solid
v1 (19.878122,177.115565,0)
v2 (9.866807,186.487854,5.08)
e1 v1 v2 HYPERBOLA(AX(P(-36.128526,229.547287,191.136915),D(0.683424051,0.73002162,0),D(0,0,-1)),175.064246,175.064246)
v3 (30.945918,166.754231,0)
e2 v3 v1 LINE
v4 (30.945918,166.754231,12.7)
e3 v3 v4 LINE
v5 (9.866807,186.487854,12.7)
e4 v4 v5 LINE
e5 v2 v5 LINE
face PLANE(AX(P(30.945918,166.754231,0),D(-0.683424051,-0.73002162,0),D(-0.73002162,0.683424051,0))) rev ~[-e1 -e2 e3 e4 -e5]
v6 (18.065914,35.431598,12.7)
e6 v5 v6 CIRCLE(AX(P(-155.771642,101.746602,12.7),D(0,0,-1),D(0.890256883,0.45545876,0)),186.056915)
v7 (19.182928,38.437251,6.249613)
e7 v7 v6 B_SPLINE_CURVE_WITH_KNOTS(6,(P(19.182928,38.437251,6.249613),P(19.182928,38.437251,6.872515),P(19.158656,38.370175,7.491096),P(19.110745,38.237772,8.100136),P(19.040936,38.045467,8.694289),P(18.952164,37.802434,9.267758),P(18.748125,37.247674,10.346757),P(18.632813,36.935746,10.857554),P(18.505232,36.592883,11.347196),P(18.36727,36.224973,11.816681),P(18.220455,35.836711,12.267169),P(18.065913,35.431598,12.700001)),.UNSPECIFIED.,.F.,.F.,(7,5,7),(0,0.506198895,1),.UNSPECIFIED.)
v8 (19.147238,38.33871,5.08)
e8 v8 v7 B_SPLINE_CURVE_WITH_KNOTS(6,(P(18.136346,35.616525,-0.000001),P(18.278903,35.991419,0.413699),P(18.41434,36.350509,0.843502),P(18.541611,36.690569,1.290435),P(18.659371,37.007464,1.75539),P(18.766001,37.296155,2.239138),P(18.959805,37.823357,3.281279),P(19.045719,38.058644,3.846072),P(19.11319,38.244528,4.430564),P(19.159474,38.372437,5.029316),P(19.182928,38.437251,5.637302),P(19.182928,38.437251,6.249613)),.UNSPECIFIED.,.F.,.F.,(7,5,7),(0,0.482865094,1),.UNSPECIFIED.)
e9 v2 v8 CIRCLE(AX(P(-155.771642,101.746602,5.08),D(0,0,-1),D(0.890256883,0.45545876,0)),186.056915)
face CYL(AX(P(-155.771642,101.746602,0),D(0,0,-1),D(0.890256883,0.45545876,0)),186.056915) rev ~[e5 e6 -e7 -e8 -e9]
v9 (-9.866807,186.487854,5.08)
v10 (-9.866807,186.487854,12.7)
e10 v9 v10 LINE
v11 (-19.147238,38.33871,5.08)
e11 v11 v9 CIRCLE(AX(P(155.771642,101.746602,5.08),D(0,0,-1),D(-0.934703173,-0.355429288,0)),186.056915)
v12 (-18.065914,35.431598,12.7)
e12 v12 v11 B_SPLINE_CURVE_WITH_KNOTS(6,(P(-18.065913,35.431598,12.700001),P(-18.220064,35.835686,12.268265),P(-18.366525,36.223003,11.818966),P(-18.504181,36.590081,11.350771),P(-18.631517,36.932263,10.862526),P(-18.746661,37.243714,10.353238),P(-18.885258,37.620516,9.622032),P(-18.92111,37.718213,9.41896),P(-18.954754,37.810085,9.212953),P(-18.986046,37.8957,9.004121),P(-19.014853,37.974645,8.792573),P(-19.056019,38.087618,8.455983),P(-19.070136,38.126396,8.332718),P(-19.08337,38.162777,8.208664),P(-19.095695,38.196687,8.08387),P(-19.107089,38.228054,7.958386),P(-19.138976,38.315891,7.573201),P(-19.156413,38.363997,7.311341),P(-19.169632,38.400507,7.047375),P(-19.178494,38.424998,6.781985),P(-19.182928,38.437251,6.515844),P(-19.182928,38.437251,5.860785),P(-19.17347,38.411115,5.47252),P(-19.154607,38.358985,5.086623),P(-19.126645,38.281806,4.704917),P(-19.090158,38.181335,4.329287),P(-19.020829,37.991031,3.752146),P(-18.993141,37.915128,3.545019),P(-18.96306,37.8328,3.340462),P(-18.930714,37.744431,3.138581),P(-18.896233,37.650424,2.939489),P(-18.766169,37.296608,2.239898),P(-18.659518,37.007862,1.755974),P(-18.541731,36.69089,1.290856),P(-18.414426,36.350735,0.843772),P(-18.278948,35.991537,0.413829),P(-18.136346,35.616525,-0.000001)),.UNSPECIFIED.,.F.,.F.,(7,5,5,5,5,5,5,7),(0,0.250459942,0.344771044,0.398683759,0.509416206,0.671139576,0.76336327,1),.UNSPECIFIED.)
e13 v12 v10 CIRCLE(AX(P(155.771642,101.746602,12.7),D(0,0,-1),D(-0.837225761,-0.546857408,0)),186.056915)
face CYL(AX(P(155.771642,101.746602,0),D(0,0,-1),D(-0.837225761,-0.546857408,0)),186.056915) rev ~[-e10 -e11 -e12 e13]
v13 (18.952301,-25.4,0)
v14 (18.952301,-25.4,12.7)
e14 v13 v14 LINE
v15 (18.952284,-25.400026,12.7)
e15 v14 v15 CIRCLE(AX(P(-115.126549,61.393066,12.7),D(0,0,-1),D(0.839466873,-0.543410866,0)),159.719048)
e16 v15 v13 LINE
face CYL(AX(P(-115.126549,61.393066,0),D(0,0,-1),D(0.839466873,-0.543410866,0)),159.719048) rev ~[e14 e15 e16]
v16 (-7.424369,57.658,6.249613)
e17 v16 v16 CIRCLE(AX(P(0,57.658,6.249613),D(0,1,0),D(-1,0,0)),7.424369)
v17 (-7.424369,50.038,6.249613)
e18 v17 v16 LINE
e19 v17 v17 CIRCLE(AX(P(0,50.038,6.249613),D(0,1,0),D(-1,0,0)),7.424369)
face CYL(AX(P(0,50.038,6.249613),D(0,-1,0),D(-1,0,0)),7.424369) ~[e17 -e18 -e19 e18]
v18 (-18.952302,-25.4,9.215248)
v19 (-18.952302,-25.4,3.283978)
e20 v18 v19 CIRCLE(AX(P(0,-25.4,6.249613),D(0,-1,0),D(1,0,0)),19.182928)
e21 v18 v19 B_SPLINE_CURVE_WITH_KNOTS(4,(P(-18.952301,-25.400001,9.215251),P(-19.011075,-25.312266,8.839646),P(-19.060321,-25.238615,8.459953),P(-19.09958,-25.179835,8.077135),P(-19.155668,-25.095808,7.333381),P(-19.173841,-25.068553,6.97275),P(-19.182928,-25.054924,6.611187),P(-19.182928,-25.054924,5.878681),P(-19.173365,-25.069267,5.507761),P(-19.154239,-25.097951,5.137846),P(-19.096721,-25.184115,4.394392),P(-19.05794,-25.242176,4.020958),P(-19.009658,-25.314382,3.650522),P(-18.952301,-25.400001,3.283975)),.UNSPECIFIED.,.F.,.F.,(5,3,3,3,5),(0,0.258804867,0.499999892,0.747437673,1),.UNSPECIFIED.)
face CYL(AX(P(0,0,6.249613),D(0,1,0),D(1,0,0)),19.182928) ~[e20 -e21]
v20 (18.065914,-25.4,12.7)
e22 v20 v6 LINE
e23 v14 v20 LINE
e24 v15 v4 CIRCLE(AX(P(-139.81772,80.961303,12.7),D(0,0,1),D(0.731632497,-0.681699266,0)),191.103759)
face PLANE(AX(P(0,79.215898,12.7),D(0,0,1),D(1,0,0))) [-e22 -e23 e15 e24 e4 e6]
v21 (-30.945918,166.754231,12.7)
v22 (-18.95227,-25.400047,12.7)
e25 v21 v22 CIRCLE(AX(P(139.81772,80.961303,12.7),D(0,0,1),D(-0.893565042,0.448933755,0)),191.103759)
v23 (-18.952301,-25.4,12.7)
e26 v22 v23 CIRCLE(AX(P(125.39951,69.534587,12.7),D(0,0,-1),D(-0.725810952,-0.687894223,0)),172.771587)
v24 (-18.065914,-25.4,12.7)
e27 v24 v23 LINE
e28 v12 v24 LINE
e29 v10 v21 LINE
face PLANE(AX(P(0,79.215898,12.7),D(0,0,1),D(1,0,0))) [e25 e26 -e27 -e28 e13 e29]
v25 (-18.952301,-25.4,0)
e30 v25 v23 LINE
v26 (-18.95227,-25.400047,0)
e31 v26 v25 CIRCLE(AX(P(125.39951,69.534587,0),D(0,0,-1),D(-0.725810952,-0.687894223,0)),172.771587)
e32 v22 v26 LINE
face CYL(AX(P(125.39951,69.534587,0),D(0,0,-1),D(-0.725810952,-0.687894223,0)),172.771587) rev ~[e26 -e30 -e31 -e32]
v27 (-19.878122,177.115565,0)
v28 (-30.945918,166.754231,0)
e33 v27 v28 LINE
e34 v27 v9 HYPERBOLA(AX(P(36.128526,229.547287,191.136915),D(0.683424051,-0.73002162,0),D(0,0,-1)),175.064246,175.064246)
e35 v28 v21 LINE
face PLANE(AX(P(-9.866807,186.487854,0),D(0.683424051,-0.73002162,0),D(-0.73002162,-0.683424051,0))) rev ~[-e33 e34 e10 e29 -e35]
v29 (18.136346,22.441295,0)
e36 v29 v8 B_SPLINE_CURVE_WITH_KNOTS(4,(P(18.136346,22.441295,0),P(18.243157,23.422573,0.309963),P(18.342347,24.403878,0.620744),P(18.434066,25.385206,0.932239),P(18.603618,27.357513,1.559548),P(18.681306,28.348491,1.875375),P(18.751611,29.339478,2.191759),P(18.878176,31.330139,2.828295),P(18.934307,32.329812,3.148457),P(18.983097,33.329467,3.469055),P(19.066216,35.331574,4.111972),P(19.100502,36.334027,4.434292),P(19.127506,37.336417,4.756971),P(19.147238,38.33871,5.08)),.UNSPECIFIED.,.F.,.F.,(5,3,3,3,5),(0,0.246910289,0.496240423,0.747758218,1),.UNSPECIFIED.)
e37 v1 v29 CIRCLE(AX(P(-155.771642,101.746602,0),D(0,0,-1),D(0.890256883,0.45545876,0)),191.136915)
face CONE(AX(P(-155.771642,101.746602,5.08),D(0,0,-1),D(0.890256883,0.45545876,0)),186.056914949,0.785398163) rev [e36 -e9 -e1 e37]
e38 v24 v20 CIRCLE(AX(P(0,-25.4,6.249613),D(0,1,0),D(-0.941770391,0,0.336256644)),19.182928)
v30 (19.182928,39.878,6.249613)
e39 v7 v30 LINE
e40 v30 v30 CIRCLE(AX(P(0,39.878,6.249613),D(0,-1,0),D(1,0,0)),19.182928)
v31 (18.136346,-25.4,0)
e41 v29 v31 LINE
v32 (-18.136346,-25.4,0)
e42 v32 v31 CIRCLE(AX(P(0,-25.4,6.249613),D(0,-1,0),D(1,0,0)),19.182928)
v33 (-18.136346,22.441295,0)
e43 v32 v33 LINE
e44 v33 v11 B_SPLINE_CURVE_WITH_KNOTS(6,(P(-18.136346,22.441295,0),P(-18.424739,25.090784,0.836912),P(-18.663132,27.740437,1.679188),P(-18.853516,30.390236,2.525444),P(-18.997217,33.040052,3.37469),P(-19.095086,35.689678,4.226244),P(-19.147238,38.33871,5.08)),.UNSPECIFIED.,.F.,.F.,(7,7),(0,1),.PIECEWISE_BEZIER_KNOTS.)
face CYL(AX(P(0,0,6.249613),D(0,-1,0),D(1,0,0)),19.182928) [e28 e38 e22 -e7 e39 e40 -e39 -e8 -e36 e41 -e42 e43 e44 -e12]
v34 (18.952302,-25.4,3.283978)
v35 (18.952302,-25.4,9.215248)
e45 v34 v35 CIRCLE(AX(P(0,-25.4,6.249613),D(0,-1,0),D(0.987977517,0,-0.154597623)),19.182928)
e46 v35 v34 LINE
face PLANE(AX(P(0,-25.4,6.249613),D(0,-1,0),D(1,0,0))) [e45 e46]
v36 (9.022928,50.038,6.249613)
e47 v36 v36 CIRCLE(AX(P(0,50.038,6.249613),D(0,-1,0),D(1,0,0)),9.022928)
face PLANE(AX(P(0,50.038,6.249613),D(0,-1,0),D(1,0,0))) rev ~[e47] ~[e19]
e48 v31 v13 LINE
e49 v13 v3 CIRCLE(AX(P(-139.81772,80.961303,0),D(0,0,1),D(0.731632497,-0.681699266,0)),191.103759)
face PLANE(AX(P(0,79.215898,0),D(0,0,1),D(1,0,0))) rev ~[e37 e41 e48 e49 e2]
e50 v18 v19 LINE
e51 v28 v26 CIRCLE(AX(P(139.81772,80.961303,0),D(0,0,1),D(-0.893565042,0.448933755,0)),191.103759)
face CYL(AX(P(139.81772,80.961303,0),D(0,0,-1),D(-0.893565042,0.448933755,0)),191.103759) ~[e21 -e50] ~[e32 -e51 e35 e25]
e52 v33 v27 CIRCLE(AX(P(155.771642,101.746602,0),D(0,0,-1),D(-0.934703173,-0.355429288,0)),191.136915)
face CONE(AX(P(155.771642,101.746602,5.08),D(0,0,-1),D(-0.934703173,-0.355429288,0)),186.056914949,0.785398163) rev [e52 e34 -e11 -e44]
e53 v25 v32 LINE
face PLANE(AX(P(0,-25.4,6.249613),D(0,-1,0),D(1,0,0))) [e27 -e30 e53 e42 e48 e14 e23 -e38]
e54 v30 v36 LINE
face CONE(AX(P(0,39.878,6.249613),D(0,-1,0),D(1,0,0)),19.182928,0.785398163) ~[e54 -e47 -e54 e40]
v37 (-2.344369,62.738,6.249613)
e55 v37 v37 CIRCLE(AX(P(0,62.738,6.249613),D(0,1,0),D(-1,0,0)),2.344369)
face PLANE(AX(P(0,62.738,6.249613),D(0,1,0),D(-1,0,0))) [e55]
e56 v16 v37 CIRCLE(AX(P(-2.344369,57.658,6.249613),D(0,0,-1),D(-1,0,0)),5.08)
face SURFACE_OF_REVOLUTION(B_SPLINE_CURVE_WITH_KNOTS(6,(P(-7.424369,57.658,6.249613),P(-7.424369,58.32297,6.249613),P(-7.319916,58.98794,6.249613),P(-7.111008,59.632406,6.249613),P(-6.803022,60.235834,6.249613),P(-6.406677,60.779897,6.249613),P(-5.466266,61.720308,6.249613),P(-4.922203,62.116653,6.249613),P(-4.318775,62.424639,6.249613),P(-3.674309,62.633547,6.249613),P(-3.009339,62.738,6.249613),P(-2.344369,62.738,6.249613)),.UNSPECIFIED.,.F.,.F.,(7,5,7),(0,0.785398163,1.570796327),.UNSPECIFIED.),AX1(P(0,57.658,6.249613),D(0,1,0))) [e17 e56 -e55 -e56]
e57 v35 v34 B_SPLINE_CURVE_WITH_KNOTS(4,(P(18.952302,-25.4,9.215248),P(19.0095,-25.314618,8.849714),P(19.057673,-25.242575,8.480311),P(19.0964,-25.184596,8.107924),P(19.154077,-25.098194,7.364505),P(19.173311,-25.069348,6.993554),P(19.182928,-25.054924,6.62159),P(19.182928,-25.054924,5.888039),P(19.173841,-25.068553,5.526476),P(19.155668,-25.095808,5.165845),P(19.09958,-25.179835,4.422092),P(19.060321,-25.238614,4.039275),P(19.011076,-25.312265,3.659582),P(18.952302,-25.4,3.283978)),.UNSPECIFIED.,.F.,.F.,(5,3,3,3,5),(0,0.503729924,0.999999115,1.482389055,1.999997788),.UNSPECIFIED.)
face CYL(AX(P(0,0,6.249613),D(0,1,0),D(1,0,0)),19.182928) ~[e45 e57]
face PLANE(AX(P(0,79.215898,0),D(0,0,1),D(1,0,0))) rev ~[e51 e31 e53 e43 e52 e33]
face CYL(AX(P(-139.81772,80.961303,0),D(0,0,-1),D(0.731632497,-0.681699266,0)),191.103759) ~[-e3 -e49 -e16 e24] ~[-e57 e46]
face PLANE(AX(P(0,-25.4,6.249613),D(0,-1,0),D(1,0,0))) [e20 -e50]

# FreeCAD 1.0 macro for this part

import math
import FreeCAD as App
import Part
import Sketcher
Q = App.Units.Quantity


def edges_at(feature, points):
    """Names of the edges that pass closest to the given points."""
    edges = feature.Shape.Edges
    near = lambda p: min(range(len(edges)), key=lambda i: edges[i].distToShape(Part.Vertex(*p))[0])
    return sorted({f"Edge{near(p) + 1}" for p in points})

doc = App.newDocument("Part")
body = doc.addObject("PartDesign::Body", "Body")

# Sketch on XY plane
sketch1 = doc.addObject("Sketcher::SketchObject", "Sketch")
body.addObject(sketch1)
sketch1.AttachmentSupport = (doc.XY_Plane, [""])
sketch1.MapMode = "FlatFace"
sketch1.addGeometry(Part.ArcOfCircle(Part.Circle(App.Vector(156, 102, 0), App.Vector(0, 0, 1), 186), math.radians(153), math.radians(213)), False)
sketch1.addGeometry(Part.LineSegment(App.Vector(-10, 186, 0), App.Vector(-31, 167, 0)), False)
sketch1.addGeometry(Part.ArcOfCircle(Part.Circle(App.Vector(140, 81, 0), App.Vector(0, 0, 1), 191), math.radians(153), math.radians(223)), False)
sketch1.addGeometry(Part.ArcOfCircle(Part.Circle(App.Vector(-140, 81, 0), App.Vector(0, 0, 1), 191), math.radians(-43), math.radians(27)), False)
sketch1.addGeometry(Part.LineSegment(App.Vector(31, 167, 0), App.Vector(10, 186, 0)), False)
sketch1.addGeometry(Part.ArcOfCircle(Part.Circle(App.Vector(-156, 102, 0), App.Vector(0, 0, 1), 186), math.radians(-33), math.radians(27)), False)
sketch1.addConstraint(Sketcher.Constraint("Coincident", 0, 1, 1, 1))
sketch1.addConstraint(Sketcher.Constraint("Coincident", 1, 2, 2, 1))
sketch1.addConstraint(Sketcher.Constraint("Coincident", 2, 2, 3, 1))
sketch1.addConstraint(Sketcher.Constraint("Coincident", 3, 2, 4, 1))
sketch1.addConstraint(Sketcher.Constraint("Coincident", 4, 2, 5, 2))
sketch1.addConstraint(Sketcher.Constraint("Coincident", 5, 1, 0, 2))
sketch1.addConstraint(Sketcher.Constraint("Coincident", 5, 1, -1, 1))
sketch1.addConstraint(Sketcher.Constraint("Equal", 2, 3))
sketch1.addConstraint(Sketcher.Constraint("Equal", 0, 5))
sketch1.addConstraint(Sketcher.Constraint("Symmetric", 2, 3, 3, 3, -2))
sketch1.addConstraint(Sketcher.Constraint("Symmetric", 0, 1, 4, 2, -2))
sketch1.addConstraint(Sketcher.Constraint("Horizontal", 1, 2, 3, 2))
sketch1.addConstraint(Sketcher.Constraint("Radius", 2, Q("191.103759 mm")))
sketch1.addConstraint(Sketcher.Constraint("Radius", 0, Q("186.056915 mm")))
sketch1.addConstraint(Sketcher.Constraint("DistanceX", 0, 1, 3, 2, Q("1.6068002 in")))
sketch1.addConstraint(Sketcher.Constraint("DistanceY", 2, 3, 0, 3, Q("20.785299 mm")))
sketch1.addConstraint(Sketcher.Constraint("Distance", 1, Q("28.874639 mm")))
sketch1.addConstraint(Sketcher.Constraint("DistanceX", -1, 1, 2, 3, Q("139.81772 mm")))
sketch1.addConstraint(Sketcher.Constraint("DistanceY", -1, 1, 1, 2, Q("166.754231 mm")))
pad1 = doc.addObject("PartDesign::Pad", "Pad")
body.addObject(pad1)
pad1.Profile = sketch1
pad1.Length = Q("0.5 in")

# Sketch on XZ plane
sketch2 = doc.addObject("Sketcher::SketchObject", "Sketch001")
body.addObject(sketch2)
sketch2.AttachmentSupport = (doc.XZ_Plane, [""])
sketch2.MapMode = "FlatFace"
sketch2.addGeometry(Part.Circle(App.Vector(0, 6, 0), App.Vector(0, 0, 1), 19), False)
sketch2.addConstraint(Sketcher.Constraint("PointOnObject", 0, 3, -2))
sketch2.addConstraint(Sketcher.Constraint("Diameter", 0, Q("38.365856 mm")))
sketch2.addConstraint(Sketcher.Constraint("DistanceY", -1, 1, 0, 3, Q("6.249613 mm")))
pad2 = doc.addObject("PartDesign::Pad", "Pad001")
body.addObject(pad2)
pad2.Profile = sketch2
pad2.Type = "TwoLengths"
pad2.Length = Q("1 in")
pad2.Length2 = Q("1.97 in")
doc.recompute()

chamfer = doc.addObject("PartDesign::Chamfer", "Chamfer")
body.addObject(chamfer)
chamfer.Base = (pad2, edges_at(pad2, [(30.006, 111.929, 0)]))
chamfer.Size = Q("0.2 in")
doc.recompute()

chamfer2 = doc.addObject("PartDesign::Chamfer", "Chamfer001")
body.addObject(chamfer2)
chamfer2.Base = (chamfer, edges_at(chamfer, [(-30.006, 111.929, 0)]))
chamfer2.Size = Q("0.2 in")
doc.recompute()

chamfer3 = doc.addObject("PartDesign::Chamfer", "Chamfer002")
body.addObject(chamfer3)
chamfer3.Base = (chamfer2, edges_at(chamfer2, [(-19.183, 50.038, 6.25)]))
chamfer3.Size = Q("0.4 in")

# Sketch on XY plane
sketch3 = doc.addObject("Sketcher::SketchObject", "Sketch002")
body.addObject(sketch3)
sketch3.AttachmentSupport = (doc.XY_Plane, [""])
sketch3.MapMode = "FlatFace"
sketch3.addGeometry(Part.ArcOfCircle(Part.Circle(App.Vector(-115, 61, 0), App.Vector(0, 0, 1), 160), math.radians(-43.88), math.radians(-32.92)), False)
sketch3.addGeometry(Part.ArcOfCircle(Part.Circle(App.Vector(125, 70, 0), App.Vector(0, 0, 1), 173), math.radians(-146.67), math.radians(-136.54)), False)
sketch3.addGeometry(Part.LineSegment(App.Vector(-19, -25, 0), App.Vector(19, -25, 0)), False)
sketch3.addConstraint(Sketcher.Constraint("Coincident", 0, 1, 1, 2))
sketch3.addConstraint(Sketcher.Constraint("Coincident", 1, 1, 2, 1))
sketch3.addConstraint(Sketcher.Constraint("Coincident", 2, 2, 0, 2))
sketch3.addConstraint(Sketcher.Constraint("Horizontal", 2))
sketch3.addConstraint(Sketcher.Constraint("PointOnObject", 0, 1, -2))
sketch3.addConstraint(Sketcher.Constraint("DistanceY", 1, 1, -1, 1, Q("1 in")))
sketch3.addConstraint(Sketcher.Constraint("Radius", 0, Q("159.719048 mm")))
sketch3.addConstraint(Sketcher.Constraint("DistanceX", 2, 1, 2, 2, Q("37.904602 mm")))
sketch3.addConstraint(Sketcher.Constraint("Radius", 1, Q("172.771587 mm")))
sketch3.addConstraint(Sketcher.Constraint("DistanceX", -1, 1, 2, 2, Q("18.952301 mm")))
sketch3.addConstraint(Sketcher.Constraint("DistanceX", 0, 3, -1, 1, Q("115.126549 mm")))
pocket1 = doc.addObject("PartDesign::Pocket", "Pocket")
body.addObject(pocket1)
pocket1.Profile = sketch3
pocket1.Length = Q("1 in")
pocket1.Reversed = True

# Sketch on XZ plane
sketch4 = doc.addObject("Sketcher::SketchObject", "Sketch003")
body.addObject(sketch4)
sketch4.AttachmentSupport = (doc.XZ_Plane, [""])
sketch4.MapMode = "FlatFace"
sketch4.AttachmentOffset = App.Placement(App.Vector(0, 0, -1.97 * 25.4), App.Rotation())
sketch4.addGeometry(Part.Circle(App.Vector(0, 6, 0), App.Vector(0, 0, 1), 7), False)
sketch4.addConstraint(Sketcher.Constraint("PointOnObject", 0, 3, -2))
sketch4.addConstraint(Sketcher.Constraint("Diameter", 0, Q("14.848738 mm")))
sketch4.addConstraint(Sketcher.Constraint("DistanceY", -1, 1, 0, 3, Q("6.249613 mm")))
pad3 = doc.addObject("PartDesign::Pad", "Pad002")
body.addObject(pad3)
pad3.Profile = sketch4
pad3.Length = Q("0.5 in")
pad3.Reversed = True
doc.recompute()

fillet = doc.addObject("PartDesign::Fillet", "Fillet")
body.addObject(fillet)
fillet.Base = (pad3, edges_at(pad3, [(7.424, 62.738, 6.25)]))
fillet.Radius = Q("0.2 in")

doc.recompute()
